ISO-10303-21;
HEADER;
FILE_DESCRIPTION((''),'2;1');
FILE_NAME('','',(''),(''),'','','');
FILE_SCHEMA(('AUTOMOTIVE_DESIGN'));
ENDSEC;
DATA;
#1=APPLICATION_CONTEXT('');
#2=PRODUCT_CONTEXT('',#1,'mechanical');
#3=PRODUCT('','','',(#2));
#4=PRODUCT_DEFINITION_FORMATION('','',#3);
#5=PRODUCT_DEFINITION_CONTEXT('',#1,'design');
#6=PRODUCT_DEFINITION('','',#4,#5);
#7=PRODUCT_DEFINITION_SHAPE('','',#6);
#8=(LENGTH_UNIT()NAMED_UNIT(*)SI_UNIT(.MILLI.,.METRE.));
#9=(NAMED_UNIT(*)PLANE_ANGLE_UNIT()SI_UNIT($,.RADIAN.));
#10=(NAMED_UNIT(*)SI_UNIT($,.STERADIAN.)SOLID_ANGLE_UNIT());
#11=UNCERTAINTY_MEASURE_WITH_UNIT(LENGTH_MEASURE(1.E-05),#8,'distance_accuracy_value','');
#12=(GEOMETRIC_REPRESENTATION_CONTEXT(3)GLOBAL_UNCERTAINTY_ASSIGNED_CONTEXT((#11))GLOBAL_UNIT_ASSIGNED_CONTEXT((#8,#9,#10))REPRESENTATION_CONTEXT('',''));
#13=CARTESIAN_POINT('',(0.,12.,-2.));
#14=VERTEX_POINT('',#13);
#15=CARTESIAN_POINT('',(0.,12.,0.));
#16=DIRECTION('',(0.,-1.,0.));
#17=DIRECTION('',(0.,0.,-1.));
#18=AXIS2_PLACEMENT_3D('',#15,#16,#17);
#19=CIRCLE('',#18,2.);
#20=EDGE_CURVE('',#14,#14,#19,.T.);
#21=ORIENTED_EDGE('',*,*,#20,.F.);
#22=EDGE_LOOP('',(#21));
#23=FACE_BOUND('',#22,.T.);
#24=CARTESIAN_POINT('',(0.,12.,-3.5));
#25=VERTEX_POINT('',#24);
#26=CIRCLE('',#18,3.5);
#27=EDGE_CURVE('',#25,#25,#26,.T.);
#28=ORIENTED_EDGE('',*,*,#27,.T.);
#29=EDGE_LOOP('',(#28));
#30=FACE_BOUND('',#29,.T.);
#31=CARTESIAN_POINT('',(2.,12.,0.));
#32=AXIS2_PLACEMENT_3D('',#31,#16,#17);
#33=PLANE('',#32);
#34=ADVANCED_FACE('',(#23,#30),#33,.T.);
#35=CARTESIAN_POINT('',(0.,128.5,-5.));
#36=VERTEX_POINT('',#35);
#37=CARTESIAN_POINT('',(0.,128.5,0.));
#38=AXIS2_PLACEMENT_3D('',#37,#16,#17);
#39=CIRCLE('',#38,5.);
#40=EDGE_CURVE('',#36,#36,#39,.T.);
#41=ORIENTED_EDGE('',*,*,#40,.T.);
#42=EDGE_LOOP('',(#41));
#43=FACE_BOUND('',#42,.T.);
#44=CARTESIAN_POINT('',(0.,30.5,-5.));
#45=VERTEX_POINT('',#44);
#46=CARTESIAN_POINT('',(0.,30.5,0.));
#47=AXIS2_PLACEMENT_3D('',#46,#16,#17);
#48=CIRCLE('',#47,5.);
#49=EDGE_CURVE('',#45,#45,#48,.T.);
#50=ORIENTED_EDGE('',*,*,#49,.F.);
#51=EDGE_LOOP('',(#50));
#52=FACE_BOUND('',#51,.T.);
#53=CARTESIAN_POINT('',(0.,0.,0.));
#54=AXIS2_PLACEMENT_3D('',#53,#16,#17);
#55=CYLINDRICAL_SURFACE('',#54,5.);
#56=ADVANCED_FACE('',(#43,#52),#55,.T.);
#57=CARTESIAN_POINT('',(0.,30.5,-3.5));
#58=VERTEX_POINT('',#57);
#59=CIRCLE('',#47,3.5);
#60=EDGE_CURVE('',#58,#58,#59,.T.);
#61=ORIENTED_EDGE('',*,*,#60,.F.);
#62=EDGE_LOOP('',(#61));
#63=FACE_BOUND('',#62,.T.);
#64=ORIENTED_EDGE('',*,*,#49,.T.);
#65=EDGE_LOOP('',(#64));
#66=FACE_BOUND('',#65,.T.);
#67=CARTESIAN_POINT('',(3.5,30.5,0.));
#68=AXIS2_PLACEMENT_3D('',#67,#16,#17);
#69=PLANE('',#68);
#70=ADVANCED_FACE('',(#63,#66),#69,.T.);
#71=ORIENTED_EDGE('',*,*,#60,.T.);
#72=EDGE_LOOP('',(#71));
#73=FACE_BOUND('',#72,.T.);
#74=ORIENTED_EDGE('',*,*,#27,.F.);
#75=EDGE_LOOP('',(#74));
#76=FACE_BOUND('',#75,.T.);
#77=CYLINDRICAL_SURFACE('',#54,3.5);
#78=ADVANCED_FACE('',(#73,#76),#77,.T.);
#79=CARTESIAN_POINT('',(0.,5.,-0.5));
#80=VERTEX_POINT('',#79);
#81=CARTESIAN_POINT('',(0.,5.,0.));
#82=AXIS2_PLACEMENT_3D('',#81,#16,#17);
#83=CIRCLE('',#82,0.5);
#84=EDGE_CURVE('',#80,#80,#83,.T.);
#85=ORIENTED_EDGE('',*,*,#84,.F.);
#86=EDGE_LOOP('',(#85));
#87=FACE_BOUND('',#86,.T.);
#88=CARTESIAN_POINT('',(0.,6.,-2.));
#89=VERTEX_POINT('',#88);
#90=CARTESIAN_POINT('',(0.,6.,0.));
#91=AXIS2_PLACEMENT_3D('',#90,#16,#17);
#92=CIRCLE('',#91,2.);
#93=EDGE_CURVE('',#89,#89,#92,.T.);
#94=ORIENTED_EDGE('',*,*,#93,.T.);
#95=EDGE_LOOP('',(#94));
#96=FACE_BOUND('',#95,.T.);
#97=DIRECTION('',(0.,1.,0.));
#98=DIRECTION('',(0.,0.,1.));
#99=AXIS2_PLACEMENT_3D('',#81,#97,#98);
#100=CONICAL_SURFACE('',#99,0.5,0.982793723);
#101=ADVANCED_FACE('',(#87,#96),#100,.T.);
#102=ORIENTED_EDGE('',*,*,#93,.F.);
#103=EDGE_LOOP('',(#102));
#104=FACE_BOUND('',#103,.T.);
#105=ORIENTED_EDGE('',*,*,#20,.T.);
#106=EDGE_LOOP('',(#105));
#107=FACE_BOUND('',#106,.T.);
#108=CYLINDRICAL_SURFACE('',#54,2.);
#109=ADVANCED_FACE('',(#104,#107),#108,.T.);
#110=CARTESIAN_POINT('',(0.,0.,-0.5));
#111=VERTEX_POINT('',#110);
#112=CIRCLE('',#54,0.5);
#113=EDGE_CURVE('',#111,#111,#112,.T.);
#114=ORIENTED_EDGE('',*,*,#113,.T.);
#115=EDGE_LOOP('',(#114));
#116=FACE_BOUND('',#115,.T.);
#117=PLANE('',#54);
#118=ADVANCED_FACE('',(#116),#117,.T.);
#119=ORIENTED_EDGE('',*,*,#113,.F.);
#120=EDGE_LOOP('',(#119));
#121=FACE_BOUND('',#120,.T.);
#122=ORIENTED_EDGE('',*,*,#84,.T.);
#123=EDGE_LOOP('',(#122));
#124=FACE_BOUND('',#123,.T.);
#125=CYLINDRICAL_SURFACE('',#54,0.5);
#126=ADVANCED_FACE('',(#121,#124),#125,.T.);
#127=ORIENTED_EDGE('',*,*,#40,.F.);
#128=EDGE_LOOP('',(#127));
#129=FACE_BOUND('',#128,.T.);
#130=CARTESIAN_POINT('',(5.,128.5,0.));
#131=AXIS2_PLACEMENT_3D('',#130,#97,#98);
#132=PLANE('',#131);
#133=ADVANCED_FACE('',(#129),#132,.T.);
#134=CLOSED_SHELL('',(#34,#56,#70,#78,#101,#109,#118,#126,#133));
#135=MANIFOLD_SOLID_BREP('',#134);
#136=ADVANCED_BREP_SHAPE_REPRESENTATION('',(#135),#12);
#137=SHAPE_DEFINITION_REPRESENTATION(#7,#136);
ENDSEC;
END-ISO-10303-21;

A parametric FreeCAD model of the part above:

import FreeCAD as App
import Part
import Sketcher

V = App.Vector


def add_polygon(sketch, points):
    """Adds a closed chain of lines whose ends are joined by coincident constraints."""
    first, n = sketch.GeometryCount, len(points)
    for a, b in zip(points, points[1:] + points[:1]):
        sketch.addGeometry(Part.LineSegment(App.Vector(*a, 0), App.Vector(*b, 0)), False)
    for i in range(n):
        sketch.addConstraint(Sketcher.Constraint("Coincident", first + i, 2, first + (i + 1) % n, 1))

doc = App.newDocument("Part")
body = doc.addObject("PartDesign::Body", "Body")

# Sketch on XY plane
sketch1 = doc.addObject("Sketcher::SketchObject", "Sketch")
body.addObject(sketch1)
sketch1.AttachmentSupport = (doc.XY_Plane, [""])
sketch1.MapMode = "FlatFace"
add_polygon(sketch1, [(0, 0), (0.5, 0), (0.5, 5), (2, 6), (2, 12), (3.5, 12), (3.5, 30.5), (5, 30.5), (5, 128.5), (0, 128.5)])  # lines 0-9
sketch1.addConstraint([
    Sketcher.Constraint("Horizontal", 0),
    Sketcher.Constraint("Vertical", 1),
    Sketcher.Constraint("Vertical", 3),
    Sketcher.Constraint("Horizontal", 4),
    Sketcher.Constraint("Vertical", 5),
    Sketcher.Constraint("Horizontal", 6),
    Sketcher.Constraint("Vertical", 7),
    Sketcher.Constraint("Horizontal", 8),
    Sketcher.Constraint("Vertical", 9),
    Sketcher.Constraint("Coincident", 9, 2, -1, 1),
    Sketcher.Constraint("Equal", 4, 6),
    Sketcher.Constraint("Equal", 8, 1),
    Sketcher.Constraint("DistanceX", 8, 2, 8, 1, 5.0),
    Sketcher.Constraint("DistanceY", 3, 1, 3, 2, 6.0),
    Sketcher.Constraint("DistanceY", 7, 1, 7, 2, 98.0),
    Sketcher.Constraint("DistanceX", 0, 1, 0, 2, 0.5),
    Sketcher.Constraint("DistanceX", 4, 1, 4, 2, 1.5),
    Sketcher.Constraint("DistanceY", 5, 1, 5, 2, 18.5),
    Sketcher.Constraint("DistanceY", 9, 2, 9, 1, 128.5),
])
revolution = doc.addObject("PartDesign::Revolution", "Revolution")
body.addObject(revolution)
revolution.Profile = sketch1
revolution.ReferenceAxis = (sketch1, ["V_Axis"])
revolution.Angle = 360

doc.recompute()
